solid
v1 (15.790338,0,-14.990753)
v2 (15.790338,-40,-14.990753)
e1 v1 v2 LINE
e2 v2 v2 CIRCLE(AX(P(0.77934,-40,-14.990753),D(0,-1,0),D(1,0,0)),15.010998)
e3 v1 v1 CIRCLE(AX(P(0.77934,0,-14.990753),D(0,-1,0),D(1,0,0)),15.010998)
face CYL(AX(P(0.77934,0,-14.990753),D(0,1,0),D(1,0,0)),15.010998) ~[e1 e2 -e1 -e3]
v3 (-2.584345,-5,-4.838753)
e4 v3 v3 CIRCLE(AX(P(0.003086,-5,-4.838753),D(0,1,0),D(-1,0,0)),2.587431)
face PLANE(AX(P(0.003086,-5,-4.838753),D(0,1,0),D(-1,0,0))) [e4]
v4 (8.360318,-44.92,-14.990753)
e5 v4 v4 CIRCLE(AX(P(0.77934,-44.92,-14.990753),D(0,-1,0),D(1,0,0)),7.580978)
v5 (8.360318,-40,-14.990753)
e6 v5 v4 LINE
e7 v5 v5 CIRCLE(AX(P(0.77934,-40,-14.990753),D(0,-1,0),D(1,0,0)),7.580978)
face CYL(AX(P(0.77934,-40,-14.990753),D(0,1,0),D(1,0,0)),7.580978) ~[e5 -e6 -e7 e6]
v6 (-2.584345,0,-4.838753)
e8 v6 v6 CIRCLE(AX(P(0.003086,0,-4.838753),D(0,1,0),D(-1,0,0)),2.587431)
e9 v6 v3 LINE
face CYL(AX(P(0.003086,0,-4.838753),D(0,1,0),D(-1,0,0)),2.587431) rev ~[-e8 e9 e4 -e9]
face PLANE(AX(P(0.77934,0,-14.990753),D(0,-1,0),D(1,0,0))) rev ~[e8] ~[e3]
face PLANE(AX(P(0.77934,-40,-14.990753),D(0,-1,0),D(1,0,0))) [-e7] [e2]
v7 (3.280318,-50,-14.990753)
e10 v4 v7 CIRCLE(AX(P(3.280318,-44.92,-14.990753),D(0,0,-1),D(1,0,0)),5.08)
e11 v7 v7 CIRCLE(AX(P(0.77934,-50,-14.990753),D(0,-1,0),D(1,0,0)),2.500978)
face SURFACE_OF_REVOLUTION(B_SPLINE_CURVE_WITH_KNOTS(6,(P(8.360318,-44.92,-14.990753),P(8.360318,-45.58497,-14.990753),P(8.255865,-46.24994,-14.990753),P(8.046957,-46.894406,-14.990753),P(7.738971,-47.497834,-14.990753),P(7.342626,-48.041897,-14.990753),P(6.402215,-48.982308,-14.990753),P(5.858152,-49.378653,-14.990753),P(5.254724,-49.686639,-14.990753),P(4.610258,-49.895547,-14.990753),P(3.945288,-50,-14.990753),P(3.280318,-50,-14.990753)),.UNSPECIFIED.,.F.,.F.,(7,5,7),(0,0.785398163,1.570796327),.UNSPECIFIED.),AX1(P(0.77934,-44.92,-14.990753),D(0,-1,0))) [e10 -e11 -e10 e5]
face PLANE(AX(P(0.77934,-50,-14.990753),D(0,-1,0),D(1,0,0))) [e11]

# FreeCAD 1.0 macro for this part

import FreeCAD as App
import Part
import Sketcher


def edges_at(feature, points):
    """Names of the edges that pass closest to the given points."""
    edges = feature.Shape.Edges
    near = lambda p: min(range(len(edges)), key=lambda i: edges[i].distToShape(Part.Vertex(*p))[0])
    return sorted({f"Edge{near(p) + 1}" for p in points})

doc = App.newDocument("Part")
body = doc.addObject("PartDesign::Body", "Body")

# Sketch on XZ plane
sketch1 = doc.addObject("Sketcher::SketchObject", "Sketch")
body.addObject(sketch1)
sketch1.AttachmentSupport = (doc.XZ_Plane, [""])
sketch1.MapMode = "FlatFace"
sketch1.addGeometry(Part.Circle(App.Vector(1, -15, 0), App.Vector(0, 0, 1), 15), False)
sketch1.addConstraint([
    Sketcher.Constraint("Diameter", 0, 30.021996),
    Sketcher.Constraint("DistanceX", -1, 1, 0, 3, 0.77934),
    Sketcher.Constraint("DistanceY", 0, 3, -1, 1, 14.990753),
])
pad1 = doc.addObject("PartDesign::Pad", "Pad")
body.addObject(pad1)
pad1.Profile = sketch1
pad1.Length = 40

# Sketch on XZ plane
sketch2 = doc.addObject("Sketcher::SketchObject", "Sketch001")
body.addObject(sketch2)
sketch2.AttachmentSupport = (doc.XZ_Plane, [""])
sketch2.MapMode = "FlatFace"
sketch2.addGeometry(Part.Circle(App.Vector(0, -4.8, 0), App.Vector(0, 0, 1), 2.6), False)
sketch2.addConstraint([
    Sketcher.Constraint("Diameter", 0, 5.174862),
    Sketcher.Constraint("DistanceX", -1, 1, 0, 3, 0.003086),
    Sketcher.Constraint("DistanceY", 0, 3, -1, 1, 4.838753),
])
pocket1 = doc.addObject("PartDesign::Pocket", "Pocket")
body.addObject(pocket1)
pocket1.Profile = sketch2
pocket1.Length = 5
pocket1.Reversed = True

# Sketch on XZ plane
sketch3 = doc.addObject("Sketcher::SketchObject", "Sketch002")
body.addObject(sketch3)
sketch3.AttachmentSupport = (doc.XZ_Plane, [""])
sketch3.MapMode = "FlatFace"
sketch3.AttachmentOffset = App.Placement(App.Vector(0, 0, 40), App.Rotation())
sketch3.addGeometry(Part.Circle(App.Vector(1, -15, 0), App.Vector(0, 0, 1), 8), False)
sketch3.addConstraint([
    Sketcher.Constraint("Diameter", 0, 15.161956),
    Sketcher.Constraint("DistanceX", -1, 1, 0, 3, 0.77934),
    Sketcher.Constraint("DistanceY", 0, 3, -1, 1, 14.990753),
])
pad2 = doc.addObject("PartDesign::Pad", "Pad001")
body.addObject(pad2)
pad2.Profile = sketch3
pad2.Length = 10
doc.recompute()

fillet = doc.addObject("PartDesign::Fillet", "Fillet")
body.addObject(fillet)
fillet.Base = (pad2, edges_at(pad2, [(-6.802, -50, -14.991)]))
fillet.Radius = 5.08

doc.recompute()
